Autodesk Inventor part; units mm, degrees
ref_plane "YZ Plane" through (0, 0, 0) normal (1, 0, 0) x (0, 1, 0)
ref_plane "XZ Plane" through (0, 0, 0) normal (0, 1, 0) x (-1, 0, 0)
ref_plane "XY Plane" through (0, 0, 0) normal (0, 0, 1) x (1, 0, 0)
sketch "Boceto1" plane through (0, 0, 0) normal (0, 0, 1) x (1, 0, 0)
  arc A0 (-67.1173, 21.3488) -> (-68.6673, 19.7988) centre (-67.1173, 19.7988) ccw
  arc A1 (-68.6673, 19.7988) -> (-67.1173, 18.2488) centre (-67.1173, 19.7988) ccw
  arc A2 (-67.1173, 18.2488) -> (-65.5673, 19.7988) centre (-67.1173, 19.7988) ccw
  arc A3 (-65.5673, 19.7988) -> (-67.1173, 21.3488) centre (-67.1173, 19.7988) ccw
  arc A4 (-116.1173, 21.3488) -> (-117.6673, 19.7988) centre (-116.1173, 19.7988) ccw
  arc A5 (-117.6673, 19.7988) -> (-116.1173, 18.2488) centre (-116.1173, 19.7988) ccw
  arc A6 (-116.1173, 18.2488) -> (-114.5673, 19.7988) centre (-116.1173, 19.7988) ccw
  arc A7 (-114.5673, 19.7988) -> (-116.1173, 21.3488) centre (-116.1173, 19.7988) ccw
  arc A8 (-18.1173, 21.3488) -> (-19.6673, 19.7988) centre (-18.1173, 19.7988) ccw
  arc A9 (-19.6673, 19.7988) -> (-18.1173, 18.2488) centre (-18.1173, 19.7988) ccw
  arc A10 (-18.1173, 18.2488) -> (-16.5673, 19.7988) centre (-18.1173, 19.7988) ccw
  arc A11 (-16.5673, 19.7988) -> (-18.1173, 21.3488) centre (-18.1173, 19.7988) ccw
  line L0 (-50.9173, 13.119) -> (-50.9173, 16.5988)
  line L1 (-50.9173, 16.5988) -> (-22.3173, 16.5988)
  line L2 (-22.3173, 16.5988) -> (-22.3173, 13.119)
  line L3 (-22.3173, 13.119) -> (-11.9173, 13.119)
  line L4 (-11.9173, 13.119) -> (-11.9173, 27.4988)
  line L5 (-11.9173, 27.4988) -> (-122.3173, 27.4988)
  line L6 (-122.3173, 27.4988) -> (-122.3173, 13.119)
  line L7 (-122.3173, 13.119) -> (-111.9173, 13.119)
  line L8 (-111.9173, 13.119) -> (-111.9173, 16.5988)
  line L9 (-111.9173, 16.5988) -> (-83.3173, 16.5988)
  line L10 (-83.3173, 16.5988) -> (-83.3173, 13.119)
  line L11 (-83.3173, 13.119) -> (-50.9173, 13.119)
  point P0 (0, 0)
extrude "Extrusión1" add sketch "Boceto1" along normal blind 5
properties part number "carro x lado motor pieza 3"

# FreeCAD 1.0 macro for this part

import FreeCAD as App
import Part
import Sketcher

V = App.Vector
Q = App.Units.Quantity


def add_polygon(sketch, points):
    """Adds a closed chain of lines whose ends are joined by coincident constraints."""
    first, n = sketch.GeometryCount, len(points)
    for a, b in zip(points, points[1:] + points[:1]):
        sketch.addGeometry(Part.LineSegment(App.Vector(*a, 0), App.Vector(*b, 0)), False)
    for i in range(n):
        sketch.addConstraint(Sketcher.Constraint("Coincident", first + i, 2, first + (i + 1) % n, 1))

doc = App.newDocument("Part")
body = doc.addObject("PartDesign::Body", "Body")

# Sketch on XY plane
sketch1 = doc.addObject("Sketcher::SketchObject", "Sketch")
body.addObject(sketch1)
sketch1.AttachmentSupport = (doc.XY_Plane, [""])
sketch1.MapMode = "FlatFace"
add_polygon(sketch1, [(-83.3173, 13.119), (-50.9173, 13.119), (-50.9173, 16.5988), (-22.3173, 16.5988), (-22.3173, 13.119), (-11.9173, 13.119), (-11.9173, 27.4988), (-122.3173, 27.4988), (-122.3173, 13.119), (-111.9173, 13.119), (-111.9173, 16.5988), (-83.3173, 16.5988)])  # lines 0-11
sketch1.addGeometry(Part.Circle(V(-116.1173, 19.7988, 0), V(0, 0, 1), 1.55), False)  # 12
sketch1.addGeometry(Part.Circle(V(-67.1173, 19.7988, 0), V(0, 0, 1), 1.55), False)  # 13
sketch1.addGeometry(Part.Circle(V(-18.1173, 19.7988, 0), V(0, 0, 1), 1.55), False)  # 14
sketch1.addConstraint(Sketcher.Constraint("Horizontal", 0))
sketch1.addConstraint(Sketcher.Constraint("Vertical", 1))
sketch1.addConstraint(Sketcher.Constraint("Horizontal", 2))
sketch1.addConstraint(Sketcher.Constraint("Vertical", 3))
sketch1.addConstraint(Sketcher.Constraint("Horizontal", 4))
sketch1.addConstraint(Sketcher.Constraint("Vertical", 5))
sketch1.addConstraint(Sketcher.Constraint("Horizontal", 6))
sketch1.addConstraint(Sketcher.Constraint("Vertical", 7))
sketch1.addConstraint(Sketcher.Constraint("Horizontal", 8))
sketch1.addConstraint(Sketcher.Constraint("Vertical", 9))
sketch1.addConstraint(Sketcher.Constraint("Horizontal", 10))
sketch1.addConstraint(Sketcher.Constraint("Vertical", 11))
sketch1.addConstraint(Sketcher.Constraint("Equal", 12, 13))
sketch1.addConstraint(Sketcher.Constraint("Equal", 13, 14))
sketch1.addConstraint(Sketcher.Constraint("Horizontal", 12, 3, 13, 3))
sketch1.addConstraint(Sketcher.Constraint("Horizontal", 13, 3, 14, 3))
sketch1.addConstraint(Sketcher.Constraint("Horizontal", 0, 2, 3, 2))
sketch1.addConstraint(Sketcher.Constraint("Horizontal", 4, 2, 7, 2))
sketch1.addConstraint(Sketcher.Constraint("Horizontal", 2, 2, 9, 2))
sketch1.addConstraint(Sketcher.Constraint("Equal", 4, 8))
sketch1.addConstraint(Sketcher.Constraint("Equal", 2, 10))
sketch1.addConstraint(Sketcher.Constraint("Diameter", 12, Q("3.1 mm")))
sketch1.addConstraint(Sketcher.Constraint("DistanceX", 0, 1, 0, 2, Q("32.4 mm")))
sketch1.addConstraint(Sketcher.Constraint("DistanceX", 2, 1, 2, 2, Q("28.6 mm")))
sketch1.addConstraint(Sketcher.Constraint("DistanceX", 4, 1, 4, 2, Q("10.4 mm")))
sketch1.addConstraint(Sketcher.Constraint("DistanceX", 12, 3, 13, 3, Q("49 mm")))
sketch1.addConstraint(Sketcher.Constraint("DistanceX", 13, 3, 14, 3, Q("49 mm")))
sketch1.addConstraint(Sketcher.Constraint("DistanceX", 13, 3, 0, 2, Q("16.2 mm")))
sketch1.addConstraint(Sketcher.Constraint("DistanceY", 1, 2, 13, 3, Q("3.2 mm")))
sketch1.addConstraint(Sketcher.Constraint("DistanceY", 14, 3, 5, 2, Q("7.7 mm")))
sketch1.addConstraint(Sketcher.Constraint("DistanceY", 1, 1, 1, 2, Q("3.4798 mm")))
sketch1.addConstraint(Sketcher.Constraint("DistanceY", -1, 1, 0, 2, Q("13.119 mm")))
sketch1.addConstraint(Sketcher.Constraint("DistanceX", 12, 3, -1, 1, Q("116.1173 mm")))
pad1 = doc.addObject("PartDesign::Pad", "Pad")
body.addObject(pad1)
pad1.Profile = sketch1
pad1.Length = 5

doc.recompute()
